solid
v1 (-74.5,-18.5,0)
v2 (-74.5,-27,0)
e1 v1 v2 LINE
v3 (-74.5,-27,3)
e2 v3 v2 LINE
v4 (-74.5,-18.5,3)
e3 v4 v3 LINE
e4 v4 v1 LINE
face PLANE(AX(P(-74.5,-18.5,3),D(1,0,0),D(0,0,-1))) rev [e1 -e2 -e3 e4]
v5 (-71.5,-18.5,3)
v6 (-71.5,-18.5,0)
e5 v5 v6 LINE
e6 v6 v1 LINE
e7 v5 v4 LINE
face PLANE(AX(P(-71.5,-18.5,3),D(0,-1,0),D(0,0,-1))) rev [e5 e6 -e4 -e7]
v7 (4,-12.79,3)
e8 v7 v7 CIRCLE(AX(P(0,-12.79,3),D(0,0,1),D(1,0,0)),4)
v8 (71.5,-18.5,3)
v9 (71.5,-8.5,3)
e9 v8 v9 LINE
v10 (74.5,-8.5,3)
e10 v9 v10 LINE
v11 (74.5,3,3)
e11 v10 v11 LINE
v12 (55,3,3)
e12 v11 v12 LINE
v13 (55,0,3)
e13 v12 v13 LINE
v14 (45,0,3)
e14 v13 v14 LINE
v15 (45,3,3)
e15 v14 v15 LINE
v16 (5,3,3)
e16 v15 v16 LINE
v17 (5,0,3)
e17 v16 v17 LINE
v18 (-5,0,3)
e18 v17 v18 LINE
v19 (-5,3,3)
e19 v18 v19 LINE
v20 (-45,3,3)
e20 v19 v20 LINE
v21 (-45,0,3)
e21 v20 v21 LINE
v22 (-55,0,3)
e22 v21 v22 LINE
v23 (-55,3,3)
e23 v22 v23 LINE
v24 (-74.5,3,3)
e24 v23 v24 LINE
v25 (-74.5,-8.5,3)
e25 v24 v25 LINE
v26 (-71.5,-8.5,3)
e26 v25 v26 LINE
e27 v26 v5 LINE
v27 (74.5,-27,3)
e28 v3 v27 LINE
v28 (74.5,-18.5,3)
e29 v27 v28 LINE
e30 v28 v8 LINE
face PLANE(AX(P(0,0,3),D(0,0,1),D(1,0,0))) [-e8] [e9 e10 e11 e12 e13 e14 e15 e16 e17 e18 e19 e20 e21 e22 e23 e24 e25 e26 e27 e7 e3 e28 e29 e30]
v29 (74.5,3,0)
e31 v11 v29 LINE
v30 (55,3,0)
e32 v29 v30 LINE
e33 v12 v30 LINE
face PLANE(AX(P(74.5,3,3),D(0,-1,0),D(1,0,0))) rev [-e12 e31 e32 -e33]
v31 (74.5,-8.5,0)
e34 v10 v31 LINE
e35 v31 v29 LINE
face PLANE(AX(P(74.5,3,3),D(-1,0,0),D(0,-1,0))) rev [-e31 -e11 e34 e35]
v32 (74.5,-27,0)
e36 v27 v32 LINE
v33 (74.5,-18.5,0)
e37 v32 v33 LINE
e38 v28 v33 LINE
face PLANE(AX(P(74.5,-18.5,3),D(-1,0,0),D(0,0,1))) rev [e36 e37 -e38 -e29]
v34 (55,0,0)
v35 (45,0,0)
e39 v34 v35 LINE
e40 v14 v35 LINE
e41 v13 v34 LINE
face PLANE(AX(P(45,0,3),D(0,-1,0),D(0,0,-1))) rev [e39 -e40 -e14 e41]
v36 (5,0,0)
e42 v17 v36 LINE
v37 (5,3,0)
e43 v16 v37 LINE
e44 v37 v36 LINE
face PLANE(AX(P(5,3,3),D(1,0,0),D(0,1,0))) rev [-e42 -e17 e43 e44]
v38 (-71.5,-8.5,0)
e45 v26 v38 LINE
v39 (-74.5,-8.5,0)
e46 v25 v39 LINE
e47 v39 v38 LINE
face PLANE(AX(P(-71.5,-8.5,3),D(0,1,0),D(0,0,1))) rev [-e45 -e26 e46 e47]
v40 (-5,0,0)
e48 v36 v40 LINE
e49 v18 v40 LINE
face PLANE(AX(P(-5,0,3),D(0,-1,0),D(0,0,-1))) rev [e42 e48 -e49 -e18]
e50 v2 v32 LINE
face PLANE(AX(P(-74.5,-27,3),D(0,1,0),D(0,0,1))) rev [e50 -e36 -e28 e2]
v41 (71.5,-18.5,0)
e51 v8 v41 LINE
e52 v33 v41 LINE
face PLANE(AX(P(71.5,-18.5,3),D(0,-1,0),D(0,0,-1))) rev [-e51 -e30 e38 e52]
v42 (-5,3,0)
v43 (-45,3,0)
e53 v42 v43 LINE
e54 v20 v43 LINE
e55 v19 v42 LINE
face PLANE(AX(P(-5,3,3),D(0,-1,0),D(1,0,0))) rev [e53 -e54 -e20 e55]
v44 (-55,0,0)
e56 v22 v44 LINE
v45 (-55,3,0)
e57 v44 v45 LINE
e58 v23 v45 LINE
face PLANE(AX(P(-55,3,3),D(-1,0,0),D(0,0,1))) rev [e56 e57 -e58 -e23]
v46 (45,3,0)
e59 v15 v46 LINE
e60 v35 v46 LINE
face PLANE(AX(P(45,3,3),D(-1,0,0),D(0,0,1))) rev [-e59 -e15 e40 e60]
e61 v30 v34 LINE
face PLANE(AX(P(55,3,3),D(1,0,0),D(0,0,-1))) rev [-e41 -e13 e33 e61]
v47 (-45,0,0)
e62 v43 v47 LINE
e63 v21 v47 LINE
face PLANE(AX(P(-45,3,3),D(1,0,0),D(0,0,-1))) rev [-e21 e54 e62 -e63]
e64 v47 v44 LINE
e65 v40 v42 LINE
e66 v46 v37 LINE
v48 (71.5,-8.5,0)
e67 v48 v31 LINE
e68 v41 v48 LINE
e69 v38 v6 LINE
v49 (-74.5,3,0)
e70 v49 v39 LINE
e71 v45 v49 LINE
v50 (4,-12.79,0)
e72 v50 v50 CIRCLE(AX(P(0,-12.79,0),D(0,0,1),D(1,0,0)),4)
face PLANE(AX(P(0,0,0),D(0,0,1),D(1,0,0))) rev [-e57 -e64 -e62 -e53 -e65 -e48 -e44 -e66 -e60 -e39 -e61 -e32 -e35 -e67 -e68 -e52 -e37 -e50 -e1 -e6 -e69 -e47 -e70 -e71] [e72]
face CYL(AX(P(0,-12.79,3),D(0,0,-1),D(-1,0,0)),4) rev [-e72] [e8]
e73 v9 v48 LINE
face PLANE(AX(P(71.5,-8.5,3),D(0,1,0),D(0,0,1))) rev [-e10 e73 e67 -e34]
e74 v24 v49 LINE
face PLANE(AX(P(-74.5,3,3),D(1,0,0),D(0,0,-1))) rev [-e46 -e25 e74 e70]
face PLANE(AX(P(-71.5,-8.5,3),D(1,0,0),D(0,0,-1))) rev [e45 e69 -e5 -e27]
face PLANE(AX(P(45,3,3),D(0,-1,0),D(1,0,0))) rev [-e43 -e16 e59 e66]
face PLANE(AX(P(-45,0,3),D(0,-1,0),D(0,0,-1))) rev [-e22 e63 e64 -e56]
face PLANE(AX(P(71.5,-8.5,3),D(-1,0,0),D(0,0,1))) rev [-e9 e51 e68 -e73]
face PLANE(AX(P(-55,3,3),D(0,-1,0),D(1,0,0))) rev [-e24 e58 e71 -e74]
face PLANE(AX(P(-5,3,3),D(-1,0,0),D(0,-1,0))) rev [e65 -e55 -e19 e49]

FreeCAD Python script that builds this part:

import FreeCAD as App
import Part
import Sketcher
from FreeCAD import Vector


def add_polygon(sketch, points):
    """Adds a closed chain of lines whose ends are joined by coincident constraints."""
    first, n = sketch.GeometryCount, len(points)
    for a, b in zip(points, points[1:] + points[:1]):
        sketch.addGeometry(Part.LineSegment(App.Vector(*a, 0), App.Vector(*b, 0)), False)
    for i in range(n):
        sketch.addConstraint(Sketcher.Constraint("Coincident", first + i, 2, first + (i + 1) % n, 1))

doc = App.newDocument("Part")
body = doc.addObject("PartDesign::Body", "Body")

sketch1 = body.newObject("Sketcher::SketchObject", "Sketch")
sketch1.AttachmentSupport = (doc.getObject("XY_Plane"), [""])
sketch1.MapMode = "FlatFace"
add_polygon(sketch1, [(-74.5, 3), (-74.5, -8.5), (-71.5, -8.5), (-71.5, -18.5), (-74.5, -18.5), (-74.5, -27), (74.5, -27), (74.5, -18.5), (71.5, -18.5), (71.5, -8.5), (74.5, -8.5), (74.5, 3), (55, 3), (55, 0), (45, 0), (45, 3), (5, 3), (5, 0), (-5, 0), (-5, 3), (-45, 3), (-45, 0), (-55, 0), (-55, 3)])
sketch1.addConstraint([
    Sketcher.Constraint("Vertical", 0),
    Sketcher.Constraint("Horizontal", 1),
    Sketcher.Constraint("Vertical", 2),
    Sketcher.Constraint("Horizontal", 3),
    Sketcher.Constraint("Vertical", 4),
    Sketcher.Constraint("Horizontal", 5),
    Sketcher.Constraint("Vertical", 6),
    Sketcher.Constraint("Horizontal", 7),
    Sketcher.Constraint("Vertical", 8),
    Sketcher.Constraint("Horizontal", 9),
    Sketcher.Constraint("Vertical", 10),
    Sketcher.Constraint("Horizontal", 11),
    Sketcher.Constraint("Vertical", 12),
    Sketcher.Constraint("Horizontal", 13),
    Sketcher.Constraint("Vertical", 14),
    Sketcher.Constraint("Horizontal", 15),
    Sketcher.Constraint("Vertical", 16),
    Sketcher.Constraint("Horizontal", 17),
    Sketcher.Constraint("Vertical", 18),
    Sketcher.Constraint("Horizontal", 19),
    Sketcher.Constraint("Vertical", 20),
    Sketcher.Constraint("Horizontal", 21),
    Sketcher.Constraint("Vertical", 22),
    Sketcher.Constraint("Horizontal", 23),
    Sketcher.Constraint("Symmetric", 16, 2, 17, 2, -1, 1),
    Sketcher.Constraint("Symmetric", 13, 2, 20, 2, -1, 1),
    Sketcher.Constraint("Symmetric", 3, 2, 6, 2, -2),
    Sketcher.Constraint("Symmetric", 1, 2, 8, 2, -2),
    Sketcher.Constraint("Symmetric", 12, 2, 21, 2, -2),
    Sketcher.Constraint("Symmetric", 10, 2, 23, 2, -2),
    Sketcher.Constraint("Horizontal", 11, 2, 14, 2),
    Sketcher.Constraint("Horizontal", 15, 2, 18, 2),
    Sketcher.Constraint("Vertical", 0, 2, 3, 2),
    Sketcher.Constraint("Equal", 13, 17),
    Sketcher.Constraint("Equal", 21, 2),
    Sketcher.Constraint("Equal", 9, 12),
    Sketcher.Constraint("DistanceX", 1, 1, 1, 2, 3.0),
    Sketcher.Constraint("DistanceX", 5, 1, 5, 2, 149.0),
    Sketcher.Constraint("DistanceX", 13, 2, 13, 1, 10.0),
    Sketcher.Constraint("DistanceX", 15, 2, 15, 1, 40.0),
    Sketcher.Constraint("DistanceY", 0, 2, 0, 1, 11.5),
    Sketcher.Constraint("DistanceY", 4, 2, 4, 1, 8.5),
])
pad1 = body.newObject("PartDesign::Pad", "Pad")
pad1.Profile = sketch1
pad1.Length = 3

sketch2 = body.newObject("Sketcher::SketchObject", "Sketch001")
sketch2.AttachmentSupport = (doc.getObject("XY_Plane"), [""])
sketch2.MapMode = "FlatFace"
sketch2.addGeometry(Part.Circle(Vector(0, -12.8, 0), Vector(0, 0, 1), 4), False)
sketch2.addConstraint([
    Sketcher.Constraint("PointOnObject", 0, 3, -2),
    Sketcher.Constraint("Diameter", 0, 8.0),
    Sketcher.Constraint("DistanceY", 0, 3, -1, 1, 12.79),
])
pocket1 = body.newObject("PartDesign::Pocket", "Pocket")
pocket1.Profile = sketch2
pocket1.Type = "ThroughAll"
pocket1.Reversed = True

doc.recompute()
